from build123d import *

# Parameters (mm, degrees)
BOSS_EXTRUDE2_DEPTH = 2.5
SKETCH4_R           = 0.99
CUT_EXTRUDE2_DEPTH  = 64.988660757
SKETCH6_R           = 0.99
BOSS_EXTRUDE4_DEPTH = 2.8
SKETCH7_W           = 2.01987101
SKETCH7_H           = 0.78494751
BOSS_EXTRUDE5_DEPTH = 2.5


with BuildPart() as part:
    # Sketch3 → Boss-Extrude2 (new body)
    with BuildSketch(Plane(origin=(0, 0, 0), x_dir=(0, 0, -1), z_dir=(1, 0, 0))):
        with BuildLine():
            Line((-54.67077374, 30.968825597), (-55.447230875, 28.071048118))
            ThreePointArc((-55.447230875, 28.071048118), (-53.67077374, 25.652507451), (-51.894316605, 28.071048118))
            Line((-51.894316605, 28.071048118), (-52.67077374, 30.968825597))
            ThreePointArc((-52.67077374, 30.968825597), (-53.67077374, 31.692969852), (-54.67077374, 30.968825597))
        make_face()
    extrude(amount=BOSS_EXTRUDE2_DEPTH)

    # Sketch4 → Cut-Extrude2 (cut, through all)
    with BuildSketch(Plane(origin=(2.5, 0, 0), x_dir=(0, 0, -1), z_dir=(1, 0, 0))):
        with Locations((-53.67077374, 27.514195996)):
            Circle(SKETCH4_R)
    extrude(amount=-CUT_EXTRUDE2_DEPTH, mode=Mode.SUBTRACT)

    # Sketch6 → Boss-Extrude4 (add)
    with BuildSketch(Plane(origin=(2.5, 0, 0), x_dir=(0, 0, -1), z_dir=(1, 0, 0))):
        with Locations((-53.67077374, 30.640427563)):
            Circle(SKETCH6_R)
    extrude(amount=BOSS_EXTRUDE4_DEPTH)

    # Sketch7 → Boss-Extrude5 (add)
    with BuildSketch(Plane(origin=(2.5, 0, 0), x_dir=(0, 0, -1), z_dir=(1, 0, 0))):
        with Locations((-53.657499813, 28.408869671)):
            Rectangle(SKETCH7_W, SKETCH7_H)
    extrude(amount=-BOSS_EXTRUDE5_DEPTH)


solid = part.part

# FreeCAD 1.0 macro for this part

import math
import FreeCAD as App
import Part
import Sketcher
Q = App.Units.Quantity


def add_polygon(sketch, points):
    """Adds a closed chain of lines whose ends are joined by coincident constraints."""
    first, n = sketch.GeometryCount, len(points)
    for a, b in zip(points, points[1:] + points[:1]):
        sketch.addGeometry(Part.LineSegment(App.Vector(*a, 0), App.Vector(*b, 0)), False)
    for i in range(n):
        sketch.addConstraint(Sketcher.Constraint("Coincident", first + i, 2, first + (i + 1) % n, 1))

doc = App.newDocument("Part")
body = doc.addObject("PartDesign::Body", "Body")

# Sketch on YZ plane
sketch1 = doc.addObject("Sketcher::SketchObject", "Sketch")
body.addObject(sketch1)
sketch1.AttachmentSupport = (doc.YZ_Plane, [""])
sketch1.MapMode = "FlatFace"
sketch1.addGeometry([
    Part.LineSegment(App.Vector(31, 54.7, 0), App.Vector(28.1, 55.4, 0)),
    Part.ArcOfCircle(Part.Circle(App.Vector(27.5, 53.7, 0), App.Vector(0, 0, 1), 1.9), math.radians(73), math.radians(287)),
    Part.LineSegment(App.Vector(28.1, 51.9, 0), App.Vector(31, 52.7, 0)),
    Part.ArcOfCircle(Part.Circle(App.Vector(30.6, 53.7, 0), App.Vector(0, 0, 1), 1.1), math.radians(-72), math.radians(72)),
], False)
sketch1.addConstraint([
    Sketcher.Constraint("Coincident", 0, 2, 1, 1),
    Sketcher.Constraint("Coincident", 1, 2, 2, 1),
    Sketcher.Constraint("Coincident", 2, 2, 3, 1),
    Sketcher.Constraint("Coincident", 3, 2, 0, 1),
    Sketcher.Constraint("Horizontal", 1, 3, 3, 3),
    Sketcher.Constraint("Vertical", 0, 2, 1, 2),
    Sketcher.Constraint("Vertical", 2, 2, 3, 2),
    Sketcher.Constraint("Angle", 0, Q("165 deg")),
    Sketcher.Constraint("Distance", 0, Q("3 mm")),
    Sketcher.Constraint("DistanceY", 2, 2, 3, 3, Q("1 mm")),
    Sketcher.Constraint("Radius", 1, Q("1.861689 mm")),
    Sketcher.Constraint("Radius", 3, Q("1.052542 mm")),
    Sketcher.Constraint("DistanceX", -1, 1, 0, 2, Q("28.071048 mm")),
    Sketcher.Constraint("DistanceY", -1, 1, 0, 2, Q("55.447231 mm")),
])
pad1 = doc.addObject("PartDesign::Pad", "Pad")
body.addObject(pad1)
pad1.Profile = sketch1
pad1.Length = 2.5

# Sketch on YZ plane
sketch2 = doc.addObject("Sketcher::SketchObject", "Sketch001")
body.addObject(sketch2)
sketch2.AttachmentSupport = (doc.YZ_Plane, [""])
sketch2.MapMode = "FlatFace"
sketch2.AttachmentOffset = App.Placement(App.Vector(0, 0, 2.5), App.Rotation())
sketch2.addGeometry(Part.Circle(App.Vector(27.5, 53.7, 0), App.Vector(0, 0, 1), 1), False)
sketch2.addConstraint([
    Sketcher.Constraint("Diameter", 0, Q("1.98 mm")),
    Sketcher.Constraint("DistanceX", -1, 1, 0, 3, Q("27.514196 mm")),
    Sketcher.Constraint("DistanceY", -1, 1, 0, 3, Q("53.670774 mm")),
])
pocket1 = doc.addObject("PartDesign::Pocket", "Pocket")
body.addObject(pocket1)
pocket1.Profile = sketch2
pocket1.Type = "ThroughAll"

# Sketch on YZ plane
sketch3 = doc.addObject("Sketcher::SketchObject", "Sketch002")
body.addObject(sketch3)
sketch3.AttachmentSupport = (doc.YZ_Plane, [""])
sketch3.MapMode = "FlatFace"
sketch3.AttachmentOffset = App.Placement(App.Vector(0, 0, 2.5), App.Rotation())
sketch3.addGeometry(Part.Circle(App.Vector(30.6, 53.7, 0), App.Vector(0, 0, 1), 1), False)
sketch3.addConstraint([
    Sketcher.Constraint("Diameter", 0, Q("1.98 mm")),
    Sketcher.Constraint("DistanceX", -1, 1, 0, 3, Q("30.640428 mm")),
    Sketcher.Constraint("DistanceY", -1, 1, 0, 3, Q("53.670774 mm")),
])
pad2 = doc.addObject("PartDesign::Pad", "Pad001")
body.addObject(pad2)
pad2.Profile = sketch3
pad2.Length = 2.8

# Sketch on YZ plane
sketch4 = doc.addObject("Sketcher::SketchObject", "Sketch003")
body.addObject(sketch4)
sketch4.AttachmentSupport = (doc.YZ_Plane, [""])
sketch4.MapMode = "FlatFace"
sketch4.AttachmentOffset = App.Placement(App.Vector(0, 0, 2.5), App.Rotation())
add_polygon(sketch4, [(28.8, 54.7), (28, 54.7), (28, 52.6), (28.8, 52.6)])  # lines 0-3
sketch4.addConstraint([
    Sketcher.Constraint("Horizontal", 0),
    Sketcher.Constraint("Vertical", 1),
    Sketcher.Constraint("Horizontal", 2),
    Sketcher.Constraint("Vertical", 3),
    Sketcher.Constraint("DistanceY", 1, 2, 1, 1, Q("2.019871 mm")),
    Sketcher.Constraint("DistanceX", 0, 2, 0, 1, Q("0.784948 mm")),
    Sketcher.Constraint("DistanceX", -1, 1, 0, 2, Q("28.016396 mm")),
    Sketcher.Constraint("DistanceY", -1, 1, 0, 2, Q("54.667435 mm")),
])
pad3 = doc.addObject("PartDesign::Pad", "Pad002")
body.addObject(pad3)
pad3.Profile = sketch4
pad3.Length = 2.5
pad3.Reversed = True

doc.recompute()
